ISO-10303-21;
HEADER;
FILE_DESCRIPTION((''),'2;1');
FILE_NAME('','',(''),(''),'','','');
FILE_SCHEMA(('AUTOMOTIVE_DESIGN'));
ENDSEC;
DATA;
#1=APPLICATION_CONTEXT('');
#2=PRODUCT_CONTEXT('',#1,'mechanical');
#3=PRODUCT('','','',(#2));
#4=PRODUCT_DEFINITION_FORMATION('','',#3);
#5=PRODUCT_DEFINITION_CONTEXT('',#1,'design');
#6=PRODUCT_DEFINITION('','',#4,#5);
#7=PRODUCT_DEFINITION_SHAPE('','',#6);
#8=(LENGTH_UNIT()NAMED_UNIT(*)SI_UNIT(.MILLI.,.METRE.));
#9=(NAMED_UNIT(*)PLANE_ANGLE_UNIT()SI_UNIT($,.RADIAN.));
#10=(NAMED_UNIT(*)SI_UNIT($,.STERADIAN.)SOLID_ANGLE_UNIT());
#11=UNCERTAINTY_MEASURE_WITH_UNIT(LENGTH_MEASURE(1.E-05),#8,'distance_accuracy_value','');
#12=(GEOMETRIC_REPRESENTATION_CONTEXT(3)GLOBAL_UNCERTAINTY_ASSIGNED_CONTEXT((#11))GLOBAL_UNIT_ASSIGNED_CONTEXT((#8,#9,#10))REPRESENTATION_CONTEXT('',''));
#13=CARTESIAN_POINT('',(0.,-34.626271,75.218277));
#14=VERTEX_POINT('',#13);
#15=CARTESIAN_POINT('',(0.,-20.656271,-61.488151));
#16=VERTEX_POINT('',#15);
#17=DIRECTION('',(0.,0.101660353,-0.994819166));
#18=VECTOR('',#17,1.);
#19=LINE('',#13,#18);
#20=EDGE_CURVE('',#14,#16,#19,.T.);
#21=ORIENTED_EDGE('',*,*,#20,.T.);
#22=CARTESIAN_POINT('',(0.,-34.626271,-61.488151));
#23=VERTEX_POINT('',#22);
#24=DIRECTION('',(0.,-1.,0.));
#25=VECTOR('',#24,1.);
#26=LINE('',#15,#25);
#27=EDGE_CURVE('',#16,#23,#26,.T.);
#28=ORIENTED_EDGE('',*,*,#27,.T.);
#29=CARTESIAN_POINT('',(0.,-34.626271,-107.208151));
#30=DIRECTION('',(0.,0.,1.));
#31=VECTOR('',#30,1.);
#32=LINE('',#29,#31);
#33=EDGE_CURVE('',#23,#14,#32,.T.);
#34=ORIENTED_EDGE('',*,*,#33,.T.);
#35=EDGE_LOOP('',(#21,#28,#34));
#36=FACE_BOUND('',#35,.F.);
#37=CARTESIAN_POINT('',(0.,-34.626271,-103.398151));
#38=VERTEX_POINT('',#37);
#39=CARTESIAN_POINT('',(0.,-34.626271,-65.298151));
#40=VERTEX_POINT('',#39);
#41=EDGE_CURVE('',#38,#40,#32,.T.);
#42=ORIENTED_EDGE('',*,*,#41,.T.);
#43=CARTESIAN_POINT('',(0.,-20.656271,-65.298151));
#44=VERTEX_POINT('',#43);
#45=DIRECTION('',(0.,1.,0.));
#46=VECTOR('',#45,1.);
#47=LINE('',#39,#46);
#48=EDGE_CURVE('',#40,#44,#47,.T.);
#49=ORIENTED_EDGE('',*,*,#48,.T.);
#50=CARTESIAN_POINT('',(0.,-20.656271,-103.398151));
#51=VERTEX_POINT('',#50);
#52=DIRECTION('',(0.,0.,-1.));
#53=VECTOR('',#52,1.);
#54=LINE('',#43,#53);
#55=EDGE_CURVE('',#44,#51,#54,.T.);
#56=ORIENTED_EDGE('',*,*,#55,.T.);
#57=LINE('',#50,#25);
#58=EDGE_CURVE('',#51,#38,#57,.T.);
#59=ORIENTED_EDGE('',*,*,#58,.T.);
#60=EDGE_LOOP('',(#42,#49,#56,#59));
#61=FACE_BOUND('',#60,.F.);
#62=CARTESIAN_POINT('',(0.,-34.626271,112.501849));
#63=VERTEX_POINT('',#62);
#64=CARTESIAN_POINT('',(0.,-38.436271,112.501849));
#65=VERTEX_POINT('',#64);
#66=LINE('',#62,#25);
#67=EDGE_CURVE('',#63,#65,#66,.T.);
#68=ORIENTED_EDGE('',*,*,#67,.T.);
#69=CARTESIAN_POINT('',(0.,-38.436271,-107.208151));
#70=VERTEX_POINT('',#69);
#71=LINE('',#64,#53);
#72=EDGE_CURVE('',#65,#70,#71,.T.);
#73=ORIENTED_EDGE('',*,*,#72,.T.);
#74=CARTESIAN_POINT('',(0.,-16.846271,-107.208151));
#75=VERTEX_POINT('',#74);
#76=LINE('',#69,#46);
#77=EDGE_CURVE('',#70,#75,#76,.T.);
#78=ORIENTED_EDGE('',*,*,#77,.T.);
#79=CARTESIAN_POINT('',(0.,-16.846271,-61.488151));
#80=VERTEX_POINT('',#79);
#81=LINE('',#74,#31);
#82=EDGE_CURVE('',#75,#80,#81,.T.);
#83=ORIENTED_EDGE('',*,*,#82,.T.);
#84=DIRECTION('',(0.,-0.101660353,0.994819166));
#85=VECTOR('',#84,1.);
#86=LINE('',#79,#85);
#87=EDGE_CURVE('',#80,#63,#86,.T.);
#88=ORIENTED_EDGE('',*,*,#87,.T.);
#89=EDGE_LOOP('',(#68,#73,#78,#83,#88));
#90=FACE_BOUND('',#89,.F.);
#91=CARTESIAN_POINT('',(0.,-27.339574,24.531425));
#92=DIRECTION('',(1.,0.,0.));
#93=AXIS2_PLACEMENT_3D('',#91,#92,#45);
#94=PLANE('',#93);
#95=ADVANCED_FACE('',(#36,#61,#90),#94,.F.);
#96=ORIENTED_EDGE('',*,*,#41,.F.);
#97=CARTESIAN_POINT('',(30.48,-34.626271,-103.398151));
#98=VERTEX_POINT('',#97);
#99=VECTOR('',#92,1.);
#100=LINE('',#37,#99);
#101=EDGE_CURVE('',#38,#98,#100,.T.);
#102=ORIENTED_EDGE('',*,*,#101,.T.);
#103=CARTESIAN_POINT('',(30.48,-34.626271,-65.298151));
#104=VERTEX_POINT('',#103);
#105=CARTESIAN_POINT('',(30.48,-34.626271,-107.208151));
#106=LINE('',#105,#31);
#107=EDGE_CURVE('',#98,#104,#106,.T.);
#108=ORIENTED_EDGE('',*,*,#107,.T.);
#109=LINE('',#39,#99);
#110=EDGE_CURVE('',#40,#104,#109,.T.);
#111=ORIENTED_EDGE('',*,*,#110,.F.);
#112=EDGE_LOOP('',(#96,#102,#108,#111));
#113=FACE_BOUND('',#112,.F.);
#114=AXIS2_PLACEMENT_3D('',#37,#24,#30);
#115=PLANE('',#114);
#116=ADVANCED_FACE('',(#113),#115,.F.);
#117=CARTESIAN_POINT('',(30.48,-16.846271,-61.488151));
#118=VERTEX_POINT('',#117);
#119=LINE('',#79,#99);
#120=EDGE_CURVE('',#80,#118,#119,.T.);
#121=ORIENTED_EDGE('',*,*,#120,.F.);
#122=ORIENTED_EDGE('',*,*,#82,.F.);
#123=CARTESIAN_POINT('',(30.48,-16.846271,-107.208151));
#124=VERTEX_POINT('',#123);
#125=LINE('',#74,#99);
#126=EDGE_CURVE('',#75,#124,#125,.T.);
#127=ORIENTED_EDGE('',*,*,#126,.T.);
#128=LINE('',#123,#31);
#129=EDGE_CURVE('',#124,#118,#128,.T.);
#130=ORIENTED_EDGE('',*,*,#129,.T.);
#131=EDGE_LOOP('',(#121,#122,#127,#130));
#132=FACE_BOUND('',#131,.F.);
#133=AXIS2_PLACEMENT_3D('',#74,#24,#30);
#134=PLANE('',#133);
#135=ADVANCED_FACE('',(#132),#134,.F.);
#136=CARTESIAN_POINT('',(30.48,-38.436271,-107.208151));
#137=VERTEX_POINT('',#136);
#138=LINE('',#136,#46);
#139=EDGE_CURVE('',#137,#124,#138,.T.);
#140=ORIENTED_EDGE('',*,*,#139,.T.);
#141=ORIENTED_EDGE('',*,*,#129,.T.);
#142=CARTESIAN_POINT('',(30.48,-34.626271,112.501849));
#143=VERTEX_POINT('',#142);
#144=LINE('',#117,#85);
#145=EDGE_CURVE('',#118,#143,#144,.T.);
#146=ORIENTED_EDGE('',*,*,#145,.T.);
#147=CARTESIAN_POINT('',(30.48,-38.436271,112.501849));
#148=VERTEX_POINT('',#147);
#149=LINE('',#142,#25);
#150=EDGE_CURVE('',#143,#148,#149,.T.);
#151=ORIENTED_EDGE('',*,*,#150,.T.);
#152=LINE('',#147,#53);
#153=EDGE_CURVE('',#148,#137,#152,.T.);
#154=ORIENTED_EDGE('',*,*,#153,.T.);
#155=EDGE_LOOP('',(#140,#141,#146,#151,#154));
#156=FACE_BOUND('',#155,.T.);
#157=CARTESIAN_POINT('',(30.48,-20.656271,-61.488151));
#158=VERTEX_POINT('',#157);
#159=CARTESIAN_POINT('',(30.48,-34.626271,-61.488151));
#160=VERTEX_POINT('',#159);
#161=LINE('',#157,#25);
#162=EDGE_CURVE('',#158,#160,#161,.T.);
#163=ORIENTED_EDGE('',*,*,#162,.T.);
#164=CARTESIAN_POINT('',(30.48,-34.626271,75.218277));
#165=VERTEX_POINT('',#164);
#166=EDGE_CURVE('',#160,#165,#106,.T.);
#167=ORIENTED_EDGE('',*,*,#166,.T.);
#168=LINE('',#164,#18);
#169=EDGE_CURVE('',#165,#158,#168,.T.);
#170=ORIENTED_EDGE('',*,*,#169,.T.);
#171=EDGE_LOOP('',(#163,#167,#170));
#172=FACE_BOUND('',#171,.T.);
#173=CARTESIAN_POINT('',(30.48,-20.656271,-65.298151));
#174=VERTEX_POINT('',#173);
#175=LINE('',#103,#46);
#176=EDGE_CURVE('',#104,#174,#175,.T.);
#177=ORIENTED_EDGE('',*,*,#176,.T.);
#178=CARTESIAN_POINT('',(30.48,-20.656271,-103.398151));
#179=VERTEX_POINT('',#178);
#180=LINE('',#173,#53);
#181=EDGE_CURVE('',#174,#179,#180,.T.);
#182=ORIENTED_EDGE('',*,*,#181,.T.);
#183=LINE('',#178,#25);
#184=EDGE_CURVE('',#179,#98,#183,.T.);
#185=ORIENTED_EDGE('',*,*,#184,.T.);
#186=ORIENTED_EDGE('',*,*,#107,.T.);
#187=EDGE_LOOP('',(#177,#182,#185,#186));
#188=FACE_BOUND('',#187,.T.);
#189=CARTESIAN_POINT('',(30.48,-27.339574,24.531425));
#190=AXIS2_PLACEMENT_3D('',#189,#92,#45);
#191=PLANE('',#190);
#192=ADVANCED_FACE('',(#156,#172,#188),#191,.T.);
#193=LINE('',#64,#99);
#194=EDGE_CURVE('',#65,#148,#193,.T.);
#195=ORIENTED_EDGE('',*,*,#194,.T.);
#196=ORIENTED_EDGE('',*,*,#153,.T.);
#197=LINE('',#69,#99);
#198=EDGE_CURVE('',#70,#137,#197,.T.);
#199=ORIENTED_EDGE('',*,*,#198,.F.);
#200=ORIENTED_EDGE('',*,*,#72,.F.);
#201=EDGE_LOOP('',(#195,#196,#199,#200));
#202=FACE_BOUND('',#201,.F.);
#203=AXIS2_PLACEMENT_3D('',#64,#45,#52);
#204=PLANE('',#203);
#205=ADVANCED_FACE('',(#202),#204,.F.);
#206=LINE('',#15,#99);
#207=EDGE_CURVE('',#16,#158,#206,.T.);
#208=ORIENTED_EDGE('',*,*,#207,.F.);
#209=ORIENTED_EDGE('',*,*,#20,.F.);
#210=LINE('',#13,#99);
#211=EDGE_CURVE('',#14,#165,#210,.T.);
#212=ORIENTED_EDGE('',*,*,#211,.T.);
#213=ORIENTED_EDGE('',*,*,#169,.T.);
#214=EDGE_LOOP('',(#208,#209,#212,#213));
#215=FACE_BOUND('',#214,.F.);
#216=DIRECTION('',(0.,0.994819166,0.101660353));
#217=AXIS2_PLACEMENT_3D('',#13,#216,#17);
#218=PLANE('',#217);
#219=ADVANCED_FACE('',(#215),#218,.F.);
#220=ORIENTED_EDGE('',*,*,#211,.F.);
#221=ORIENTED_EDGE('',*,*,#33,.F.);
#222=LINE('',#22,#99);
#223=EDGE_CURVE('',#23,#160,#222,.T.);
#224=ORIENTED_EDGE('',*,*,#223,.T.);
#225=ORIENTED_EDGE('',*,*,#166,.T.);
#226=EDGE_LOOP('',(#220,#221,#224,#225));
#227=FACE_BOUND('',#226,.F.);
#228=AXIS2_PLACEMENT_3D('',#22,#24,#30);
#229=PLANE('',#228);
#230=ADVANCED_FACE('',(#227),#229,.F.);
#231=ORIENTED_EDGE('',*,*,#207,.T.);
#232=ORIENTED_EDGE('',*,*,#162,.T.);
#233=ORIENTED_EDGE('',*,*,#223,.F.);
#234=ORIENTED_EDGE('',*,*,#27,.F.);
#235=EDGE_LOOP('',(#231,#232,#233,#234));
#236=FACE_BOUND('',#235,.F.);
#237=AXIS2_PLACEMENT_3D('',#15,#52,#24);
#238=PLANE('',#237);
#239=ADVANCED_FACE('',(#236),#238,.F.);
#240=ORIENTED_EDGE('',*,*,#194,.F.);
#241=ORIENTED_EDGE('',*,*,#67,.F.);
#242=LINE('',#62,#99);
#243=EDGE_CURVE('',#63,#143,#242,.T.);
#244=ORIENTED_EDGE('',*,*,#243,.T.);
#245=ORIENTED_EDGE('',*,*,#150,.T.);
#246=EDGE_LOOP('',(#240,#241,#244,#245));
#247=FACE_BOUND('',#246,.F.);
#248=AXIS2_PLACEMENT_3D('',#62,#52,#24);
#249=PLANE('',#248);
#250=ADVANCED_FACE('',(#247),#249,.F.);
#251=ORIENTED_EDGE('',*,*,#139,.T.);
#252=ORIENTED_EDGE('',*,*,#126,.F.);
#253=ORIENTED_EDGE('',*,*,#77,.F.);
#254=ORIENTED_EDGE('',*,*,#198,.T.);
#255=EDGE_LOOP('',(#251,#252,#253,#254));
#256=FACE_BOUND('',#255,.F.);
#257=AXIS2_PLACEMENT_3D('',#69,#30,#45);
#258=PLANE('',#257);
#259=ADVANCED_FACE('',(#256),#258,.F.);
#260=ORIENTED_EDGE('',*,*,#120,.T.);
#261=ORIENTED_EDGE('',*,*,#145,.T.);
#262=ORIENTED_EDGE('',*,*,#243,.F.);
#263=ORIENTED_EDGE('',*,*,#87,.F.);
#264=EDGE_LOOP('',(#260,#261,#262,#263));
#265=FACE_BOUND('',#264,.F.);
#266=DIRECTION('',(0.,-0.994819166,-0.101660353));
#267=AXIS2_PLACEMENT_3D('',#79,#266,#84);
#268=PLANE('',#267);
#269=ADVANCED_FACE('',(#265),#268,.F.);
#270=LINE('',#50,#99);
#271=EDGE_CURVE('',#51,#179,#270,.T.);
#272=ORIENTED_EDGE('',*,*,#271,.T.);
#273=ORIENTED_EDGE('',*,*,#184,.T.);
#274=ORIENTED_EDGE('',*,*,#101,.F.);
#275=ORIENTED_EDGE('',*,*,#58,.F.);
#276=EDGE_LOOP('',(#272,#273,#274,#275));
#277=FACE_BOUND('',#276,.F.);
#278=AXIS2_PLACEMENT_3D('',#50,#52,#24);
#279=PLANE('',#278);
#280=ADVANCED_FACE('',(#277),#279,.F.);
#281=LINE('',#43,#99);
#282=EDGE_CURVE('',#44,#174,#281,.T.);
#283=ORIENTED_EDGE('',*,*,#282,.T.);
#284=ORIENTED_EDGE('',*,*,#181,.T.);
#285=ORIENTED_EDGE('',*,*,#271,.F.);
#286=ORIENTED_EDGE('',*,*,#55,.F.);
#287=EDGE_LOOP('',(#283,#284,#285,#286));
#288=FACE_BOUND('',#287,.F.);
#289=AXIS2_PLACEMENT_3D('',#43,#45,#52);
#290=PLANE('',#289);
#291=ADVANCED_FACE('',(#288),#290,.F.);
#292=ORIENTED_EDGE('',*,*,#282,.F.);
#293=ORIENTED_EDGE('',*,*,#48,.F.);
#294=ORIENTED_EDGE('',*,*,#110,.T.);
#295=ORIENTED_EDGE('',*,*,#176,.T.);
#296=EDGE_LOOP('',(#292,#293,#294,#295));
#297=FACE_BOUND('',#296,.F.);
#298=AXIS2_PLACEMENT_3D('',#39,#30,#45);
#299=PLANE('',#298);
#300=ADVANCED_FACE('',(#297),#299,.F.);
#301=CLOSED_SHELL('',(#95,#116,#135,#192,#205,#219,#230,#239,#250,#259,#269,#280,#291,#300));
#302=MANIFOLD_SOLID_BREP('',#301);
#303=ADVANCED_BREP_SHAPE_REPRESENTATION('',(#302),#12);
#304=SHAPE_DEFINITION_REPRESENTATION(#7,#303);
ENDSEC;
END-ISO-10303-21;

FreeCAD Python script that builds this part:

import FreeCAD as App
import Part
import Sketcher
from FreeCAD import Vector
Q = App.Units.Quantity


def add_polygon(sketch, points):
    """Adds a closed chain of lines whose ends are joined by coincident constraints."""
    first, n = sketch.GeometryCount, len(points)
    for a, b in zip(points, points[1:] + points[:1]):
        sketch.addGeometry(Part.LineSegment(App.Vector(*a, 0), App.Vector(*b, 0)), False)
    for i in range(n):
        sketch.addConstraint(Sketcher.Constraint("Coincident", first + i, 2, first + (i + 1) % n, 1))

doc = App.newDocument("Part")
body = doc.addObject("PartDesign::Body", "Body")

# Sketch on YZ plane
sketch1 = body.newObject("Sketcher::SketchObject", "Sketch")
sketch1.AttachmentSupport = (doc.getObject("YZ_Plane"), [""])
sketch1.MapMode = "FlatFace"
add_polygon(sketch1, [(-16.8, -61.5), (-34.6, 112.5), (-38.4, 112.5), (-38.4, -107.2), (-16.8, -107.2)])  # lines 0-4
add_polygon(sketch1, [(-34.6, -103.4), (-34.6, -65.3), (-20.7, -65.3), (-20.7, -103.4)])  # lines 5-8
add_polygon(sketch1, [(-34.6, -61.5), (-34.6, 75.2), (-20.7, -61.5)])  # lines 9-11
sketch1.addConstraint([
    Sketcher.Constraint("Horizontal", 1),
    Sketcher.Constraint("Vertical", 2),
    Sketcher.Constraint("Horizontal", 3),
    Sketcher.Constraint("Vertical", 4),
    Sketcher.Constraint("Vertical", 5),
    Sketcher.Constraint("Horizontal", 6),
    Sketcher.Constraint("Vertical", 7),
    Sketcher.Constraint("Horizontal", 8),
    Sketcher.Constraint("Vertical", 9),
    Sketcher.Constraint("Horizontal", 11),
    Sketcher.Constraint("Parallel", 0, 10),
    Sketcher.Constraint("Horizontal", 4, 2, 10, 2),
    Sketcher.Constraint("Vertical", 0, 2, 5, 2),
    Sketcher.Constraint("Vertical", 8, 2, 9, 2),
    Sketcher.Constraint("Vertical", 7, 2, 10, 2),
    Sketcher.Constraint("DistanceY", 4, 1, 4, 2, Q("1.8 in")),
    Sketcher.Constraint("DistanceY", 5, 1, 5, 2, Q("1.5 in")),
    Sketcher.Constraint("DistanceY", 5, 2, 0, 2, Q("7 in")),
    Sketcher.Constraint("DistanceX", 1, 2, 1, 1, Q("0.15 in")),
    Sketcher.Constraint("DistanceX", 3, 1, 3, 2, Q("0.85 in")),
    Sketcher.Constraint("DistanceX", 6, 1, 6, 2, Q("0.55 in")),
    Sketcher.Constraint("DistanceY", 2, 2, 2, 1, Q("8.65 in")),
    Sketcher.Constraint("DistanceX", 0, 2, -1, 1, Q("34.626271 mm")),
    Sketcher.Constraint("DistanceY", -1, 1, 0, 2, Q("112.501849 mm")),
])
pad1 = body.newObject("PartDesign::Pad", "Pad")
pad1.Profile = sketch1
pad1.Length = Q("1.2 in")

doc.recompute()
